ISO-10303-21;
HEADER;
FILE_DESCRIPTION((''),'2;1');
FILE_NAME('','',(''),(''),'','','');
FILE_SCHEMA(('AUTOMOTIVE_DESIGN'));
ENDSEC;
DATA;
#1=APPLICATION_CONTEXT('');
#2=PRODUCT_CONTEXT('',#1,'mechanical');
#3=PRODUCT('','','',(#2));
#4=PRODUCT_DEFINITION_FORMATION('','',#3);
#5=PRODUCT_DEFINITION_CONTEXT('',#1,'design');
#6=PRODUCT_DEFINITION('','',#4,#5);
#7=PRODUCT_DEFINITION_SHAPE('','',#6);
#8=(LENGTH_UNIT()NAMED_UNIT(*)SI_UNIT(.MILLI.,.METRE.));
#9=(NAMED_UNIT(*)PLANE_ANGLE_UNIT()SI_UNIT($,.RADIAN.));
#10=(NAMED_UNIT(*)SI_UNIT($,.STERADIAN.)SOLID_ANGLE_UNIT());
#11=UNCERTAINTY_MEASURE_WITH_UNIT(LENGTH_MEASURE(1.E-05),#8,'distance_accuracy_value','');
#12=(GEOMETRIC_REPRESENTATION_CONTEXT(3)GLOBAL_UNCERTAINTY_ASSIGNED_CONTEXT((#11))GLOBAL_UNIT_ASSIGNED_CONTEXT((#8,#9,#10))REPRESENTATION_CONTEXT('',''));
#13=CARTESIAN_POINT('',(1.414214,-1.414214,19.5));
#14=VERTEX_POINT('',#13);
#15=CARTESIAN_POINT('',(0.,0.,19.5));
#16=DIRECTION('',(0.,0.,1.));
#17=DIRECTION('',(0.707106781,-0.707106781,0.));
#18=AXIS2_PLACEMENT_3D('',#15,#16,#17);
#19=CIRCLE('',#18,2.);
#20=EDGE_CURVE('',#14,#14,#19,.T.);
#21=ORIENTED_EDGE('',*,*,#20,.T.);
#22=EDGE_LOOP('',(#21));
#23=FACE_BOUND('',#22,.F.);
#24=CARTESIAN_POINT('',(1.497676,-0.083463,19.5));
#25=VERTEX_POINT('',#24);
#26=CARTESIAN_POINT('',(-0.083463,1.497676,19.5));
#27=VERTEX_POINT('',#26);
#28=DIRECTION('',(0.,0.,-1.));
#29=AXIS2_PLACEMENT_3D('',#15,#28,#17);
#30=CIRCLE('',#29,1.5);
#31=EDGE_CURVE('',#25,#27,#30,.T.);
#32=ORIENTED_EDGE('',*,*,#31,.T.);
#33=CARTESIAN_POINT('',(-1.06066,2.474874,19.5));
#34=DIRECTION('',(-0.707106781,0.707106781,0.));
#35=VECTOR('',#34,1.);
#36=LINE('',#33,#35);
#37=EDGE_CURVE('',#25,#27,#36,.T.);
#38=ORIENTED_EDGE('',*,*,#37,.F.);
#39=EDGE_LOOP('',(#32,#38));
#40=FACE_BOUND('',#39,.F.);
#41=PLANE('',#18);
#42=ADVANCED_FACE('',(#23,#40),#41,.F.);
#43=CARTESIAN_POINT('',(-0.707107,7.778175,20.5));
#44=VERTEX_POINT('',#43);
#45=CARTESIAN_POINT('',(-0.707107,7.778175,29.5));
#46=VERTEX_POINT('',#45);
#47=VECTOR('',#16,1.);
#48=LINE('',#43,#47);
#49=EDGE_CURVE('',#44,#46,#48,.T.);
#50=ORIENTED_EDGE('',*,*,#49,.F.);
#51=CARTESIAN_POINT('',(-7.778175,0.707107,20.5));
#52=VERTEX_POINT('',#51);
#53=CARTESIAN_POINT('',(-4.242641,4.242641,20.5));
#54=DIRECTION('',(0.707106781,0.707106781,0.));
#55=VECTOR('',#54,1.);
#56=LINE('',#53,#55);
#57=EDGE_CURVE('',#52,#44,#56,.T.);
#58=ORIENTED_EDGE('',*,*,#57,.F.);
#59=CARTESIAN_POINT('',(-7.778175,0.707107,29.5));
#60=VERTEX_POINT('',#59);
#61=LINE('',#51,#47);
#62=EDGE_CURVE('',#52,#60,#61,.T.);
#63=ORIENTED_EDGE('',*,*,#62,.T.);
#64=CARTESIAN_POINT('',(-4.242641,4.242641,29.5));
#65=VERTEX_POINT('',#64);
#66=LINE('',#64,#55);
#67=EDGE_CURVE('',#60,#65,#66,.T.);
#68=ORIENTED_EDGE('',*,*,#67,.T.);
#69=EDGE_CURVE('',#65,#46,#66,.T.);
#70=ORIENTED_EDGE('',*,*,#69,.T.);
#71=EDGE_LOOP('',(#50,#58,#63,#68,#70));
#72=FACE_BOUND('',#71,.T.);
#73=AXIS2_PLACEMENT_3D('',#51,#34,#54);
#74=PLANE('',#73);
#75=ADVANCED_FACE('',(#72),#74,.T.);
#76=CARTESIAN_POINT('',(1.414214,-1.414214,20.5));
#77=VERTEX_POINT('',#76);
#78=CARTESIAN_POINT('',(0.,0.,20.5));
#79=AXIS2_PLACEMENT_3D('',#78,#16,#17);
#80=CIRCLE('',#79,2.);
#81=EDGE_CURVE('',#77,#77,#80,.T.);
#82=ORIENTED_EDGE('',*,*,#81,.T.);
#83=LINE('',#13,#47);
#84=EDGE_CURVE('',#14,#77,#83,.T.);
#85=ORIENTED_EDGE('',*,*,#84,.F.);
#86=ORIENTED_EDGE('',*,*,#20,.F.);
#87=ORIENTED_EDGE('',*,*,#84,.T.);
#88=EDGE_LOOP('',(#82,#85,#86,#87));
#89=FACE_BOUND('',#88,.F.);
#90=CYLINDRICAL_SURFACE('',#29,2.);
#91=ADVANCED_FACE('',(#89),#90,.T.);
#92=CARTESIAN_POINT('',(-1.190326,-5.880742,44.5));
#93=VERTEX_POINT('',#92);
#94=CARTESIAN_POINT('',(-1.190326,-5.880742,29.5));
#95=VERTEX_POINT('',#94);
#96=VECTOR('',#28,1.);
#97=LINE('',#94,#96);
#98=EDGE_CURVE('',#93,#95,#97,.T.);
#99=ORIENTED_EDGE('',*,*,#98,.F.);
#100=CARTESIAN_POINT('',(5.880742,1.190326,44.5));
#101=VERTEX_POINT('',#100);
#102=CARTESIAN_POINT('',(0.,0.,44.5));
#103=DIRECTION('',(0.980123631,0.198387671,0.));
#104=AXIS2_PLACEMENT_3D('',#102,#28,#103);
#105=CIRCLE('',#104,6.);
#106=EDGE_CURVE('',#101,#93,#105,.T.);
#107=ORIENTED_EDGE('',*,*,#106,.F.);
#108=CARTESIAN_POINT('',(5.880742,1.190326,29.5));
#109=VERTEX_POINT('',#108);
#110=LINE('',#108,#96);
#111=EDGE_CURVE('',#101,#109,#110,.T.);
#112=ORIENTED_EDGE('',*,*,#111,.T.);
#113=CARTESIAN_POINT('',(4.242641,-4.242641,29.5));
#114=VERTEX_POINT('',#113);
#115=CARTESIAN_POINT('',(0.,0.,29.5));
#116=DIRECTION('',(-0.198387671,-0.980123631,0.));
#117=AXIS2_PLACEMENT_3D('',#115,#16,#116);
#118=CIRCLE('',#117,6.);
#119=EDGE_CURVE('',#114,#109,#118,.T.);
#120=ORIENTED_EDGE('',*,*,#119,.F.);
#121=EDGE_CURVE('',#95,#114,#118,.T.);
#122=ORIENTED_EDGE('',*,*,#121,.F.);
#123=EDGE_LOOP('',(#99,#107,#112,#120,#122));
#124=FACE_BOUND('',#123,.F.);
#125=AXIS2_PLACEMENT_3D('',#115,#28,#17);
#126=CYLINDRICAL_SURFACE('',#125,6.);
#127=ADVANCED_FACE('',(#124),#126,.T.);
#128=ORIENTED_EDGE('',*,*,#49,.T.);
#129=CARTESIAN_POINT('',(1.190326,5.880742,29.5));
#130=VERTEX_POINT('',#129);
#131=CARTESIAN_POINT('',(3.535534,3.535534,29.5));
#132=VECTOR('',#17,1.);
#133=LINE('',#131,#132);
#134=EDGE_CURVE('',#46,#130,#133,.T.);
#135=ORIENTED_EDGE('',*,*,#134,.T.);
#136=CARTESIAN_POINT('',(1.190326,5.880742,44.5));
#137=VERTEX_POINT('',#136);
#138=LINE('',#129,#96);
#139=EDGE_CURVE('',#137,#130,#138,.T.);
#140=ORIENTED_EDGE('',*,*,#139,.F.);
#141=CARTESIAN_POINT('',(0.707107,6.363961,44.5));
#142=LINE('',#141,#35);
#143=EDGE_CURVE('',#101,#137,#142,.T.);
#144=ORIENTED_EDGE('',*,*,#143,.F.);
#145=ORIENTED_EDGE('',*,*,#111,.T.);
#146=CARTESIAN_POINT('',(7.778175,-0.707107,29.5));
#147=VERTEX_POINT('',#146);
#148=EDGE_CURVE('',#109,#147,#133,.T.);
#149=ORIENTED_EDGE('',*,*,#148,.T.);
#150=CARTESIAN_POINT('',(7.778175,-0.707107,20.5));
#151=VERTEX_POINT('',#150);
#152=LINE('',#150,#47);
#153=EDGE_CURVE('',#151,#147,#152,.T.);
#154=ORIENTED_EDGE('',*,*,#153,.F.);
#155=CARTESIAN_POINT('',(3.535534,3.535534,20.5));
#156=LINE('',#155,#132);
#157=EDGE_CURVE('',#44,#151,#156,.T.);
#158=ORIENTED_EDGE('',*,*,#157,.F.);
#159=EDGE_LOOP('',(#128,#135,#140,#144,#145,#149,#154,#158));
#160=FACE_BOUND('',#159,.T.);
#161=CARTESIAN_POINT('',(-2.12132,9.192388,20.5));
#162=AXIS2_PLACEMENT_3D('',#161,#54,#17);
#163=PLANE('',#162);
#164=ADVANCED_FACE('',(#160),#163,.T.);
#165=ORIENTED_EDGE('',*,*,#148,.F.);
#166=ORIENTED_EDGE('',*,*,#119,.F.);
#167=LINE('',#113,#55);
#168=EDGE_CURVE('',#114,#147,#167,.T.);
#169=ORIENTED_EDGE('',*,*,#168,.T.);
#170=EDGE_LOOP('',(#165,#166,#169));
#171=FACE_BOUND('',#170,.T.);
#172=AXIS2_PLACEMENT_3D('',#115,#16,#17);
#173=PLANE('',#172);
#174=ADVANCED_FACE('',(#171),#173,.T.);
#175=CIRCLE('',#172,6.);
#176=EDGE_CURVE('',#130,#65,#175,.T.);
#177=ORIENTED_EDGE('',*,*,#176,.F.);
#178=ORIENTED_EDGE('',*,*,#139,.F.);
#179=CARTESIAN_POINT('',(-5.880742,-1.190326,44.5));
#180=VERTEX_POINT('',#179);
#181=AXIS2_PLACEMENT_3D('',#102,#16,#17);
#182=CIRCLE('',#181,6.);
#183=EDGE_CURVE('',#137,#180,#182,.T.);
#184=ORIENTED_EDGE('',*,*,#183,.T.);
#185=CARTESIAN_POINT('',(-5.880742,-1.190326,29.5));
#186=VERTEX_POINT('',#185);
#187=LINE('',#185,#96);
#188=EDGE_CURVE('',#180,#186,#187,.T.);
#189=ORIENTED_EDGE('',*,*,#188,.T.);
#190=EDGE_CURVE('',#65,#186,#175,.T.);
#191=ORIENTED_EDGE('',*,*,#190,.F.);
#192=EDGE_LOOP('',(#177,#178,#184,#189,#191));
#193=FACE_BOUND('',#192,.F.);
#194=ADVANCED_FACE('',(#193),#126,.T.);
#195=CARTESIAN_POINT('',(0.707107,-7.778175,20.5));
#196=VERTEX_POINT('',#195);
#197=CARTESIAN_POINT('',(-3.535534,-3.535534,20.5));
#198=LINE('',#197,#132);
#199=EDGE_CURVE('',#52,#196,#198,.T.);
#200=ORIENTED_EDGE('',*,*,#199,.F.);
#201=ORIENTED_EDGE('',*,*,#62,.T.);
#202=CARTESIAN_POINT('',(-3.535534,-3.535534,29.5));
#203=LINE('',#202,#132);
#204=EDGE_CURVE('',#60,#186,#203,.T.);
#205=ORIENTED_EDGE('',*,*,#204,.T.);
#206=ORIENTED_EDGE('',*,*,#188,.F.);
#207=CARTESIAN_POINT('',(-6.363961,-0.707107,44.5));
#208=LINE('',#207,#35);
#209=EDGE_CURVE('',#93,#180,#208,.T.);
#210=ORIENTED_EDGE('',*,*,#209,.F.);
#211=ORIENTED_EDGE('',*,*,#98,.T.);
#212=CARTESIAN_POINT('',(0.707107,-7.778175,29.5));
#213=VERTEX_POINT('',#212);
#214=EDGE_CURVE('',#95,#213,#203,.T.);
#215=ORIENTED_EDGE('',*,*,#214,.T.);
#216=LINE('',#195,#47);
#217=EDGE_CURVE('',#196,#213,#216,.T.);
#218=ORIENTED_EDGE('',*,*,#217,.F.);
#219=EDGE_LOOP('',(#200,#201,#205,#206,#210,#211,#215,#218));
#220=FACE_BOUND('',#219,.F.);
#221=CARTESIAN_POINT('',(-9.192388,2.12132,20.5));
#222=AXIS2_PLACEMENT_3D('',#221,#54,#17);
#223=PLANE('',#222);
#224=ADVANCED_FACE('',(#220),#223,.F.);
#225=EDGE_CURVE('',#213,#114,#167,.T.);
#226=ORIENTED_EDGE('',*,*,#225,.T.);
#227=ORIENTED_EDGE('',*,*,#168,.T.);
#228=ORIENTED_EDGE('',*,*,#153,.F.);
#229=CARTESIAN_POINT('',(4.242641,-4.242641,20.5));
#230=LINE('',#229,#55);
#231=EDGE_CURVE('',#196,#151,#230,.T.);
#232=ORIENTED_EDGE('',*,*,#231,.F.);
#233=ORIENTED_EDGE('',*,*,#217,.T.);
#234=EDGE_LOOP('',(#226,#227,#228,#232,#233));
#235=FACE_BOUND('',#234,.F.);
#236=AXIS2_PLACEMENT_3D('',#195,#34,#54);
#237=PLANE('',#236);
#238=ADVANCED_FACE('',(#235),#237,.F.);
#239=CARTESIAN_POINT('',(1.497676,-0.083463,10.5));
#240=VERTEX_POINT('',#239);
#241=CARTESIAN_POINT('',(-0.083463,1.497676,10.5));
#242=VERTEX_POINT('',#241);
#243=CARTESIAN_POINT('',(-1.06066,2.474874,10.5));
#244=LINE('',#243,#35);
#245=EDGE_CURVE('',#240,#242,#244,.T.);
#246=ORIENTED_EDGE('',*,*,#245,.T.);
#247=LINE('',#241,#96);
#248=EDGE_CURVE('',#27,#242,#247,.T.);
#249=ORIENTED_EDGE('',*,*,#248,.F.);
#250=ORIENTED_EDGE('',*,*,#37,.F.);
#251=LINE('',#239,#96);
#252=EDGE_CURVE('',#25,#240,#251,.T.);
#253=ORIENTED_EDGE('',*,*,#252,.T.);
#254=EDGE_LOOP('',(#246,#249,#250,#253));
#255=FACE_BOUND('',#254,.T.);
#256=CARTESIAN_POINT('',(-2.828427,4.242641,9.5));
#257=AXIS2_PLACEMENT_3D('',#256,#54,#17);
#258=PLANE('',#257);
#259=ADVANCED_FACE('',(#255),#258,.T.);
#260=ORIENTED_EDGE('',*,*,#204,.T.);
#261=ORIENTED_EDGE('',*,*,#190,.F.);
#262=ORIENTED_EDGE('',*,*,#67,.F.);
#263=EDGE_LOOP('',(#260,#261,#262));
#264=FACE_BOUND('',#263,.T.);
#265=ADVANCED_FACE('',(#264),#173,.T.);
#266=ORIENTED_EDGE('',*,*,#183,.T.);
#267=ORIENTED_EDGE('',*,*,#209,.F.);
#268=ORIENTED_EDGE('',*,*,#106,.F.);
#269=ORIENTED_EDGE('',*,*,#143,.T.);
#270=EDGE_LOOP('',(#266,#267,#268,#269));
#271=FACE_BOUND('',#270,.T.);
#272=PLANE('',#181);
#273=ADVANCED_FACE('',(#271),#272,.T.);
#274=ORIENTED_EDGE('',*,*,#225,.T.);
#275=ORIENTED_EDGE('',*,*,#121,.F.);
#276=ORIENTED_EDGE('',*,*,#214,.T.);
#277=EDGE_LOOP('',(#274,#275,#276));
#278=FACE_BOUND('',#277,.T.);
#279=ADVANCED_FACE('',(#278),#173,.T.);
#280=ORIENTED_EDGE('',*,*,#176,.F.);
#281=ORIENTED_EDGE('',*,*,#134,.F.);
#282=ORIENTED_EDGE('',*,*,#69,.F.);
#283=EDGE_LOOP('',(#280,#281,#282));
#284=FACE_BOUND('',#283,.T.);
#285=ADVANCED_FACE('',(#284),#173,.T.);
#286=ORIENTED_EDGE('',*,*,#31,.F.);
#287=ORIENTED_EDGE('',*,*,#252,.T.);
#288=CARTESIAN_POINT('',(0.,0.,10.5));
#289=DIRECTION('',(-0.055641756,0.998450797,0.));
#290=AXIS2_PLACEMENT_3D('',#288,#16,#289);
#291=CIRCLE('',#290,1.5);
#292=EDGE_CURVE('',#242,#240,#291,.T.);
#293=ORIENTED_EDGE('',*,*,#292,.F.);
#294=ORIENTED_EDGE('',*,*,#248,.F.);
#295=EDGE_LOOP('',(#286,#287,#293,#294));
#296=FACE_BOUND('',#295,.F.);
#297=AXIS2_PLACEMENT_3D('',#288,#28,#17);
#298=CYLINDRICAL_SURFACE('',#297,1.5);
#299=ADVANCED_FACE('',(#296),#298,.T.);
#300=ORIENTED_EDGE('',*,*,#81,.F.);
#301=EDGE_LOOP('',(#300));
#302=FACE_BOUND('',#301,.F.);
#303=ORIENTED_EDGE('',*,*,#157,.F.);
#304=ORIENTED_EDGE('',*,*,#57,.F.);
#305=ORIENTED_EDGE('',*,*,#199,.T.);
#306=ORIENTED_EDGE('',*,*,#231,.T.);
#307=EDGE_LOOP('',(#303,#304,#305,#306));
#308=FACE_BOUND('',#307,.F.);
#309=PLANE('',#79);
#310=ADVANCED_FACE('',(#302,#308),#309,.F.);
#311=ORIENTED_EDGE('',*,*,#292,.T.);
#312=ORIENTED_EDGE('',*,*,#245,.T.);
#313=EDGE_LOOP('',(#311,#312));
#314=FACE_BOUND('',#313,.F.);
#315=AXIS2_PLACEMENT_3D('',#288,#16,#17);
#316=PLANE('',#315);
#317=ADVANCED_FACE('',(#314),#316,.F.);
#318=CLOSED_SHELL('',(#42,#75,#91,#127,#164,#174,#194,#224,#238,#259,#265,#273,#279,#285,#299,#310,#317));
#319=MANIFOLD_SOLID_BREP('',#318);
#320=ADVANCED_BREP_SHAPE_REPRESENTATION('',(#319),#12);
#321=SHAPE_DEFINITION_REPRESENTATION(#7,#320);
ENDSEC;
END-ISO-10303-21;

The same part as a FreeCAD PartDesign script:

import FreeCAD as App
import Part
import Sketcher
Q = App.Units.Quantity

doc = App.newDocument("Part")
params = doc.addObject("Spreadsheet::Sheet", "Params")
for row, (alias, value) in enumerate([
    ("sketch1_diameter", "4 mm"),
    ("pad1_length", "1 mm"),
    ("sketch2_width", "16 mm"),
    ("sketch2_height", "10 mm"),
    ("pad2_length", "27 mm"),
    ("sketch3_diameter", "12 mm"),
    ("pad3_length", "15 mm"),
    ("sketch4_width", "10 mm"),
    ("pad4_length", "12 mm"),
    ("sketch5_diameter", "3 mm"),
    ("pad5_length", "10 mm"),
    ("sketch6_width", "12 mm"),
    ("sketch6_height", "10 mm"),
    ("pad6_length", "9 mm"),
], start=1):
    params.set(f"A{row}", alias)
    params.set(f"B{row}", "=" + value)
    params.setAlias(f"B{row}", alias)

body = doc.addObject("PartDesign::Body", "Body")

# Sketch on XY plane
sketch1 = body.newObject("Sketcher::SketchObject", "Sketch")
sketch1.AttachmentSupport = (doc.getObject("XY_Plane"), [""])
sketch1.MapMode = "FlatFace"
sketch1.AttachmentOffset = App.Placement(App.Vector(0, 0, -1), App.Rotation())
sketch1.addGeometry(Part.Circle(App.Vector(0, 0, 0), App.Vector(0, 0, 1), 2), False)
sketch1.addConstraint(Sketcher.Constraint("Coincident", 0, 3, -1, 1))
sketch1.addConstraint(Sketcher.Constraint("Diameter", 0, Q("4 mm")))
sketch1.setExpression("Constraints[1]", "Params.sketch1_diameter")
pad1 = body.newObject("PartDesign::Pad", "Pad")
pad1.Profile = sketch1
pad1.setExpression("Length", "Params.pad1_length")
body2 = doc.addObject("PartDesign::Body", "Body001")

# Sketch on XY plane
sketch2 = body2.newObject("Sketcher::SketchObject", "Sketch001")
sketch2.AttachmentSupport = (doc.getObject("XY_Plane001"), [""])
sketch2.MapMode = "FlatFace"
sketch2.addGeometry(Part.LineSegment(App.Vector(-8, 5, 0), App.Vector(-8, -5, 0)), False)
sketch2.addGeometry(Part.LineSegment(App.Vector(-8, -5, 0), App.Vector(8, -5, 0)), False)
sketch2.addGeometry(Part.LineSegment(App.Vector(8, -5, 0), App.Vector(8, 5, 0)), False)
sketch2.addGeometry(Part.LineSegment(App.Vector(8, 5, 0), App.Vector(-8, 5, 0)), False)
sketch2.addConstraint(Sketcher.Constraint("Coincident", 0, 2, 1, 1))
sketch2.addConstraint(Sketcher.Constraint("Coincident", 1, 2, 2, 1))
sketch2.addConstraint(Sketcher.Constraint("Coincident", 2, 2, 3, 1))
sketch2.addConstraint(Sketcher.Constraint("Coincident", 3, 2, 0, 1))
sketch2.addConstraint(Sketcher.Constraint("Vertical", 0))
sketch2.addConstraint(Sketcher.Constraint("Horizontal", 1))
sketch2.addConstraint(Sketcher.Constraint("Vertical", 2))
sketch2.addConstraint(Sketcher.Constraint("Horizontal", 3))
sketch2.addConstraint(Sketcher.Constraint("Symmetric", 0, 2, 2, 2, -1, 1))
sketch2.addConstraint(Sketcher.Constraint("DistanceX", 1, 1, 1, 2, Q("16 mm")))
sketch2.addConstraint(Sketcher.Constraint("DistanceY", 0, 2, 0, 1, Q("10 mm")))
sketch2.setExpression("Constraints[9]", "Params.sketch2_width")
sketch2.setExpression("Constraints[10]", "Params.sketch2_height")
pad2 = body2.newObject("PartDesign::Pad", "Pad001")
pad2.Profile = sketch2
pad2.setExpression("Length", "Params.pad2_length")
body3 = doc.addObject("PartDesign::Body", "Body002")

# Sketch on XY plane
sketch3 = body3.newObject("Sketcher::SketchObject", "Sketch002")
sketch3.AttachmentSupport = (doc.getObject("XY_Plane002"), [""])
sketch3.MapMode = "FlatFace"
sketch3.AttachmentOffset = App.Placement(App.Vector(0, 0, 9), App.Rotation())
sketch3.addGeometry(Part.Circle(App.Vector(0, 0, 0), App.Vector(0, 0, 1), 6), False)
sketch3.addConstraint(Sketcher.Constraint("Coincident", 0, 3, -1, 1))
sketch3.addConstraint(Sketcher.Constraint("Diameter", 0, Q("12 mm")))
sketch3.setExpression("Constraints[1]", "Params.sketch3_diameter")
pad3 = body3.newObject("PartDesign::Pad", "Pad002")
pad3.Profile = sketch3
pad3.setExpression("Length", "Params.pad3_length")
doc.recompute()

boolean = body3.newObject("PartDesign::Boolean", "Boolean")
boolean.Type = "Common"
boolean.addObjects([body2])
body4 = doc.addObject("PartDesign::Body", "Body003")

# Sketch on XY plane
sketch4 = body4.newObject("Sketcher::SketchObject", "Sketch003")
sketch4.AttachmentSupport = (doc.getObject("XY_Plane003"), [""])
sketch4.MapMode = "FlatFace"
sketch4.AttachmentOffset = App.Placement(App.Vector(0, 0, -11), App.Rotation())
sketch4.addGeometry(Part.LineSegment(App.Vector(-5, 11, 0), App.Vector(-5, 1, 0)), False)
sketch4.addGeometry(Part.LineSegment(App.Vector(-5, 1, 0), App.Vector(5, 1, 0)), False)
sketch4.addGeometry(Part.LineSegment(App.Vector(5, 1, 0), App.Vector(5, 11, 0)), False)
sketch4.addGeometry(Part.LineSegment(App.Vector(5, 11, 0), App.Vector(-5, 11, 0)), False)
sketch4.addConstraint(Sketcher.Constraint("Coincident", 0, 2, 1, 1))
sketch4.addConstraint(Sketcher.Constraint("Coincident", 1, 2, 2, 1))
sketch4.addConstraint(Sketcher.Constraint("Coincident", 2, 2, 3, 1))
sketch4.addConstraint(Sketcher.Constraint("Coincident", 3, 2, 0, 1))
sketch4.addConstraint(Sketcher.Constraint("Vertical", 0))
sketch4.addConstraint(Sketcher.Constraint("Horizontal", 1))
sketch4.addConstraint(Sketcher.Constraint("Vertical", 2))
sketch4.addConstraint(Sketcher.Constraint("Horizontal", 3))
sketch4.addConstraint(Sketcher.Constraint("Equal", 3, 0))
sketch4.addConstraint(Sketcher.Constraint("DistanceX", 1, 1, 1, 2, Q("10 mm")))
sketch4.addConstraint(Sketcher.Constraint("DistanceX", 0, 2, -1, 1, Q("5 mm")))
sketch4.addConstraint(Sketcher.Constraint("DistanceY", -1, 1, 0, 2, Q("1 mm")))
sketch4.setExpression("Constraints[9]", "Params.sketch4_width")
pad4 = body4.newObject("PartDesign::Pad", "Pad003")
pad4.Profile = sketch4
pad4.setExpression("Length", "Params.pad4_length")
body5 = doc.addObject("PartDesign::Body", "Body004")

# Sketch on XY plane
sketch5 = body5.newObject("Sketcher::SketchObject", "Sketch004")
sketch5.AttachmentSupport = (doc.getObject("XY_Plane004"), [""])
sketch5.MapMode = "FlatFace"
sketch5.AttachmentOffset = App.Placement(App.Vector(0, 0, -10), App.Rotation())
sketch5.addGeometry(Part.Circle(App.Vector(0, 0, 0), App.Vector(0, 0, 1), 1.5), False)
sketch5.addConstraint(Sketcher.Constraint("Coincident", 0, 3, -1, 1))
sketch5.addConstraint(Sketcher.Constraint("Diameter", 0, Q("3 mm")))
sketch5.setExpression("Constraints[1]", "Params.sketch5_diameter")
pad5 = body5.newObject("PartDesign::Pad", "Pad004")
pad5.Profile = sketch5
pad5.setExpression("Length", "Params.pad5_length")
doc.recompute()

boolean2 = body5.newObject("PartDesign::Boolean", "Boolean001")
boolean2.Type = "Cut"
boolean2.addObjects([body4])
body6 = doc.addObject("PartDesign::Body", "Body005")

# Sketch on XY plane
sketch6 = body6.newObject("Sketcher::SketchObject", "Sketch005")
sketch6.AttachmentSupport = (doc.getObject("XY_Plane005"), [""])
sketch6.MapMode = "FlatFace"
sketch6.addGeometry(Part.LineSegment(App.Vector(-6, 5, 0), App.Vector(-6, -5, 0)), False)
sketch6.addGeometry(Part.LineSegment(App.Vector(-6, -5, 0), App.Vector(6, -5, 0)), False)
sketch6.addGeometry(Part.LineSegment(App.Vector(6, -5, 0), App.Vector(6, 5, 0)), False)
sketch6.addGeometry(Part.LineSegment(App.Vector(6, 5, 0), App.Vector(-6, 5, 0)), False)
sketch6.addConstraint(Sketcher.Constraint("Coincident", 0, 2, 1, 1))
sketch6.addConstraint(Sketcher.Constraint("Coincident", 1, 2, 2, 1))
sketch6.addConstraint(Sketcher.Constraint("Coincident", 2, 2, 3, 1))
sketch6.addConstraint(Sketcher.Constraint("Coincident", 3, 2, 0, 1))
sketch6.addConstraint(Sketcher.Constraint("Vertical", 0))
sketch6.addConstraint(Sketcher.Constraint("Horizontal", 1))
sketch6.addConstraint(Sketcher.Constraint("Vertical", 2))
sketch6.addConstraint(Sketcher.Constraint("Horizontal", 3))
sketch6.addConstraint(Sketcher.Constraint("Symmetric", 0, 2, 2, 2, -1, 1))
sketch6.addConstraint(Sketcher.Constraint("DistanceX", 1, 1, 1, 2, Q("12 mm")))
sketch6.addConstraint(Sketcher.Constraint("DistanceY", 0, 2, 0, 1, Q("10 mm")))
sketch6.setExpression("Constraints[9]", "Params.sketch6_width")
sketch6.setExpression("Constraints[10]", "Params.sketch6_height")
pad6 = body6.newObject("PartDesign::Pad", "Pad005")
pad6.Profile = sketch6
pad6.setExpression("Length", "Params.pad6_length")
doc.recompute()

boolean3 = body6.newObject("PartDesign::Boolean", "Boolean002")
boolean3.Type = "Fuse"
boolean3.addObjects([body])
doc.recompute()

boolean4 = body6.newObject("PartDesign::Boolean", "Boolean003")
boolean4.Type = "Fuse"
boolean4.addObjects([body3])
doc.recompute()

boolean5 = body6.newObject("PartDesign::Boolean", "Boolean004")
boolean5.Type = "Fuse"
boolean5.addObjects([body5])
body7 = doc.addObject("PartDesign::Body", "Body006")
doc.recompute()

body6.Placement = App.Placement(App.Vector(0, 0, 20.5), App.Rotation(App.Vector(0, 0, -1), 45))
boolean6 = body7.newObject("PartDesign::Boolean", "Boolean005")
boolean6.Type = "Fuse"
boolean6.addObjects([body6])

doc.recompute()
